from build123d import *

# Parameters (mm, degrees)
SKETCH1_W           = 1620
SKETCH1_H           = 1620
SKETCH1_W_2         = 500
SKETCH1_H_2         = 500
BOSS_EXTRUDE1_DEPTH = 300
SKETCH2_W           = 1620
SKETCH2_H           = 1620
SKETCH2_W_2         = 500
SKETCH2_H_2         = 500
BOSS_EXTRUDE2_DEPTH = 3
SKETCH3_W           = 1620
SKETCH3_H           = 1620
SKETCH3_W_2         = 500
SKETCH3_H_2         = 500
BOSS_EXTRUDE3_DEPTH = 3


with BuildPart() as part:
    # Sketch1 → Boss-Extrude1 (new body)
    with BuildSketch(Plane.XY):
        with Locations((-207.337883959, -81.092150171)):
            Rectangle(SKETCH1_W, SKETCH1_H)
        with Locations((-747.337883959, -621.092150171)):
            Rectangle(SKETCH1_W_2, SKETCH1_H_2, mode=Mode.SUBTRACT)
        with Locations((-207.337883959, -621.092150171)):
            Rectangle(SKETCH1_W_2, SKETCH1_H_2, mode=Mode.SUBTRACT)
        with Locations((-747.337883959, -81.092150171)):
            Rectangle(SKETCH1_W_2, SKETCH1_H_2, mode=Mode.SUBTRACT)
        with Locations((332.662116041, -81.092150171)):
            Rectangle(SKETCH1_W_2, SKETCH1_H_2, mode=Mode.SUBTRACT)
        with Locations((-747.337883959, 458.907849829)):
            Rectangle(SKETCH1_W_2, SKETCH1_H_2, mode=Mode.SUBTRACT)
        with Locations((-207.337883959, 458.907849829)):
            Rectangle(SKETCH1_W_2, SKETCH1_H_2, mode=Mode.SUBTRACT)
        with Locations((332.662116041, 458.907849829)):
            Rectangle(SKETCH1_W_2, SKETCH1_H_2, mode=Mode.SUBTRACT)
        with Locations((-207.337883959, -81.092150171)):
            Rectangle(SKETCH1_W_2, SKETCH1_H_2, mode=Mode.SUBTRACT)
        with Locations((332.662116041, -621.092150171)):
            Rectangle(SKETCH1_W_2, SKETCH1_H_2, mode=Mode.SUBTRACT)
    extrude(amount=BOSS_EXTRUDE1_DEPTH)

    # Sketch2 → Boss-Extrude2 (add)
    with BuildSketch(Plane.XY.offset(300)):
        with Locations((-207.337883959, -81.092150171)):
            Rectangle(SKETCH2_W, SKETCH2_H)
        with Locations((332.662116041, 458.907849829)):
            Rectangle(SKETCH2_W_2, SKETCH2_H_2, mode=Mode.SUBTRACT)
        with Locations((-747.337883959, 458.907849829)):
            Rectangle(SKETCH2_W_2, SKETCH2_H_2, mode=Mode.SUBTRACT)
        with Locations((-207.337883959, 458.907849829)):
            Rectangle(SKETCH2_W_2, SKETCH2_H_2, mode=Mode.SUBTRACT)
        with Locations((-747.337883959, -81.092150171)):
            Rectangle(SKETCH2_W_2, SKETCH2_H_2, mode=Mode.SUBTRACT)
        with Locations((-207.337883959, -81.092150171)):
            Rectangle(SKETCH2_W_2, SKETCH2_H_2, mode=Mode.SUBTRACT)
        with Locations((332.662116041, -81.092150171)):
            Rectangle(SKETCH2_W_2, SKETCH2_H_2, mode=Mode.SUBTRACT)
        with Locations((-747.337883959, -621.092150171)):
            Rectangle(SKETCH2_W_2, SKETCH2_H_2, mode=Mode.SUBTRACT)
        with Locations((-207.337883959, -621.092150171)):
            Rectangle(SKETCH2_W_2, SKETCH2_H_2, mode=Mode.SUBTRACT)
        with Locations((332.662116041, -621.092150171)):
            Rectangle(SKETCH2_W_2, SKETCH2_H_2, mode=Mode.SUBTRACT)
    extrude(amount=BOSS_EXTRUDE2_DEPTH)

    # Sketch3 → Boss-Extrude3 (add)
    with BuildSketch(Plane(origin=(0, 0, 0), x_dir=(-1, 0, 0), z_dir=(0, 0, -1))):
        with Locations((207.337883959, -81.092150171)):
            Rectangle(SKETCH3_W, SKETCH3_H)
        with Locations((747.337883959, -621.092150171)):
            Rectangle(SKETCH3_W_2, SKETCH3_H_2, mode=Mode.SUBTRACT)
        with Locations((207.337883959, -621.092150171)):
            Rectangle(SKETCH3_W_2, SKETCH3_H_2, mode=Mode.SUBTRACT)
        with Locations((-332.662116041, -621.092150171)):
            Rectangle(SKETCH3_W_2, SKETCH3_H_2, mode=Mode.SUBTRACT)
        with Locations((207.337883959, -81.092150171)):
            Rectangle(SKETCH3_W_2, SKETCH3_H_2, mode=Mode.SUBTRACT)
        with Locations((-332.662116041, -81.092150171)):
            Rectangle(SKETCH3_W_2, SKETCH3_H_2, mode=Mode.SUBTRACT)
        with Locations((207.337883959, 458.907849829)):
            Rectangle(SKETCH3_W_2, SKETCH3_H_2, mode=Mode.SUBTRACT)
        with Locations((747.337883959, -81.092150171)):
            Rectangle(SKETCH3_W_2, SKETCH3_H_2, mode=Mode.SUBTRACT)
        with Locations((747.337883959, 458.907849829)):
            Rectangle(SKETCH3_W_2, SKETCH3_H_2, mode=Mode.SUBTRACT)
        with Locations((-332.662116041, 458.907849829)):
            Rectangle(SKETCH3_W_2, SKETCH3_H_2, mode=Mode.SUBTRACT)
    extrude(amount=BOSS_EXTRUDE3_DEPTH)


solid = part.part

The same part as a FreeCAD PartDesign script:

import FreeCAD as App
import Part
import Sketcher
Q = App.Units.Quantity

doc = App.newDocument("Part")
body = doc.addObject("PartDesign::Body", "Body")

# Sketch on XY plane
sketch1 = body.newObject("Sketcher::SketchObject", "Sketch")
sketch1.AttachmentSupport = (doc.getObject("XY_Plane"), [""])
sketch1.MapMode = "FlatFace"
sketch1.addGeometry(Part.LineSegment(App.Vector(-1017, 729, 0), App.Vector(-1017, -891, 0)), False)
sketch1.addGeometry(Part.LineSegment(App.Vector(-1017, -891, 0), App.Vector(603, -891, 0)), False)
sketch1.addGeometry(Part.LineSegment(App.Vector(603, -891, 0), App.Vector(603, 729, 0)), False)
sketch1.addGeometry(Part.LineSegment(App.Vector(603, 729, 0), App.Vector(-1017, 729, 0)), False)
sketch1.addGeometry(Part.LineSegment(App.Vector(-497, -871, 0), App.Vector(-997, -871, 0)), False)
sketch1.addGeometry(Part.LineSegment(App.Vector(-997, -871, 0), App.Vector(-997, -371, 0)), False)
sketch1.addGeometry(Part.LineSegment(App.Vector(-997, -371, 0), App.Vector(-497, -371, 0)), False)
sketch1.addGeometry(Part.LineSegment(App.Vector(-497, -371, 0), App.Vector(-497, -871, 0)), False)
sketch1.addGeometry(Part.LineSegment(App.Vector(43, -871, 0), App.Vector(-457, -871, 0)), False)
sketch1.addGeometry(Part.LineSegment(App.Vector(-457, -871, 0), App.Vector(-457, -371, 0)), False)
sketch1.addGeometry(Part.LineSegment(App.Vector(-457, -371, 0), App.Vector(43, -371, 0)), False)
sketch1.addGeometry(Part.LineSegment(App.Vector(43, -371, 0), App.Vector(43, -871, 0)), False)
sketch1.addGeometry(Part.LineSegment(App.Vector(583, -871, 0), App.Vector(83, -871, 0)), False)
sketch1.addGeometry(Part.LineSegment(App.Vector(83, -871, 0), App.Vector(83, -371, 0)), False)
sketch1.addGeometry(Part.LineSegment(App.Vector(83, -371, 0), App.Vector(583, -371, 0)), False)
sketch1.addGeometry(Part.LineSegment(App.Vector(583, -371, 0), App.Vector(583, -871, 0)), False)
sketch1.addGeometry(Part.LineSegment(App.Vector(-497, -331, 0), App.Vector(-997, -331, 0)), False)
sketch1.addGeometry(Part.LineSegment(App.Vector(-997, -331, 0), App.Vector(-997, 169, 0)), False)
sketch1.addGeometry(Part.LineSegment(App.Vector(-997, 169, 0), App.Vector(-497, 169, 0)), False)
sketch1.addGeometry(Part.LineSegment(App.Vector(-497, 169, 0), App.Vector(-497, -331, 0)), False)
sketch1.addGeometry(Part.LineSegment(App.Vector(-497, 209, 0), App.Vector(-997, 209, 0)), False)
sketch1.addGeometry(Part.LineSegment(App.Vector(-997, 209, 0), App.Vector(-997, 709, 0)), False)
sketch1.addGeometry(Part.LineSegment(App.Vector(-997, 709, 0), App.Vector(-497, 709, 0)), False)
sketch1.addGeometry(Part.LineSegment(App.Vector(-497, 709, 0), App.Vector(-497, 209, 0)), False)
sketch1.addGeometry(Part.LineSegment(App.Vector(43, -331, 0), App.Vector(-457, -331, 0)), False)
sketch1.addGeometry(Part.LineSegment(App.Vector(-457, -331, 0), App.Vector(-457, 169, 0)), False)
sketch1.addGeometry(Part.LineSegment(App.Vector(-457, 169, 0), App.Vector(43, 169, 0)), False)
sketch1.addGeometry(Part.LineSegment(App.Vector(43, 169, 0), App.Vector(43, -331, 0)), False)
sketch1.addGeometry(Part.LineSegment(App.Vector(583, -331, 0), App.Vector(83, -331, 0)), False)
sketch1.addGeometry(Part.LineSegment(App.Vector(83, -331, 0), App.Vector(83, 169, 0)), False)
sketch1.addGeometry(Part.LineSegment(App.Vector(83, 169, 0), App.Vector(583, 169, 0)), False)
sketch1.addGeometry(Part.LineSegment(App.Vector(583, 169, 0), App.Vector(583, -331, 0)), False)
sketch1.addGeometry(Part.LineSegment(App.Vector(43, 209, 0), App.Vector(-457, 209, 0)), False)
sketch1.addGeometry(Part.LineSegment(App.Vector(-457, 209, 0), App.Vector(-457, 709, 0)), False)
sketch1.addGeometry(Part.LineSegment(App.Vector(-457, 709, 0), App.Vector(43, 709, 0)), False)
sketch1.addGeometry(Part.LineSegment(App.Vector(43, 709, 0), App.Vector(43, 209, 0)), False)
sketch1.addGeometry(Part.LineSegment(App.Vector(583, 209, 0), App.Vector(83, 209, 0)), False)
sketch1.addGeometry(Part.LineSegment(App.Vector(83, 209, 0), App.Vector(83, 709, 0)), False)
sketch1.addGeometry(Part.LineSegment(App.Vector(83, 709, 0), App.Vector(583, 709, 0)), False)
sketch1.addGeometry(Part.LineSegment(App.Vector(583, 709, 0), App.Vector(583, 209, 0)), False)
sketch1.addConstraint(Sketcher.Constraint("Coincident", 0, 2, 1, 1))
sketch1.addConstraint(Sketcher.Constraint("Coincident", 1, 2, 2, 1))
sketch1.addConstraint(Sketcher.Constraint("Coincident", 2, 2, 3, 1))
sketch1.addConstraint(Sketcher.Constraint("Coincident", 3, 2, 0, 1))
sketch1.addConstraint(Sketcher.Constraint("Coincident", 4, 2, 5, 1))
sketch1.addConstraint(Sketcher.Constraint("Coincident", 5, 2, 6, 1))
sketch1.addConstraint(Sketcher.Constraint("Coincident", 6, 2, 7, 1))
sketch1.addConstraint(Sketcher.Constraint("Coincident", 7, 2, 4, 1))
sketch1.addConstraint(Sketcher.Constraint("Coincident", 8, 2, 9, 1))
sketch1.addConstraint(Sketcher.Constraint("Coincident", 9, 2, 10, 1))
sketch1.addConstraint(Sketcher.Constraint("Coincident", 10, 2, 11, 1))
sketch1.addConstraint(Sketcher.Constraint("Coincident", 11, 2, 8, 1))
sketch1.addConstraint(Sketcher.Constraint("Coincident", 12, 2, 13, 1))
sketch1.addConstraint(Sketcher.Constraint("Coincident", 13, 2, 14, 1))
sketch1.addConstraint(Sketcher.Constraint("Coincident", 14, 2, 15, 1))
sketch1.addConstraint(Sketcher.Constraint("Coincident", 15, 2, 12, 1))
sketch1.addConstraint(Sketcher.Constraint("Coincident", 16, 2, 17, 1))
sketch1.addConstraint(Sketcher.Constraint("Coincident", 17, 2, 18, 1))
sketch1.addConstraint(Sketcher.Constraint("Coincident", 18, 2, 19, 1))
sketch1.addConstraint(Sketcher.Constraint("Coincident", 19, 2, 16, 1))
sketch1.addConstraint(Sketcher.Constraint("Coincident", 20, 2, 21, 1))
sketch1.addConstraint(Sketcher.Constraint("Coincident", 21, 2, 22, 1))
sketch1.addConstraint(Sketcher.Constraint("Coincident", 22, 2, 23, 1))
sketch1.addConstraint(Sketcher.Constraint("Coincident", 23, 2, 20, 1))
sketch1.addConstraint(Sketcher.Constraint("Coincident", 24, 2, 25, 1))
sketch1.addConstraint(Sketcher.Constraint("Coincident", 25, 2, 26, 1))
sketch1.addConstraint(Sketcher.Constraint("Coincident", 26, 2, 27, 1))
sketch1.addConstraint(Sketcher.Constraint("Coincident", 27, 2, 24, 1))
sketch1.addConstraint(Sketcher.Constraint("Coincident", 28, 2, 29, 1))
sketch1.addConstraint(Sketcher.Constraint("Coincident", 29, 2, 30, 1))
sketch1.addConstraint(Sketcher.Constraint("Coincident", 30, 2, 31, 1))
sketch1.addConstraint(Sketcher.Constraint("Coincident", 31, 2, 28, 1))
sketch1.addConstraint(Sketcher.Constraint("Coincident", 32, 2, 33, 1))
sketch1.addConstraint(Sketcher.Constraint("Coincident", 33, 2, 34, 1))
sketch1.addConstraint(Sketcher.Constraint("Coincident", 34, 2, 35, 1))
sketch1.addConstraint(Sketcher.Constraint("Coincident", 35, 2, 32, 1))
sketch1.addConstraint(Sketcher.Constraint("Coincident", 36, 2, 37, 1))
sketch1.addConstraint(Sketcher.Constraint("Coincident", 37, 2, 38, 1))
sketch1.addConstraint(Sketcher.Constraint("Coincident", 38, 2, 39, 1))
sketch1.addConstraint(Sketcher.Constraint("Coincident", 39, 2, 36, 1))
sketch1.addConstraint(Sketcher.Constraint("Vertical", 0))
sketch1.addConstraint(Sketcher.Constraint("Horizontal", 1))
sketch1.addConstraint(Sketcher.Constraint("Vertical", 2))
sketch1.addConstraint(Sketcher.Constraint("Horizontal", 3))
sketch1.addConstraint(Sketcher.Constraint("Horizontal", 4))
sketch1.addConstraint(Sketcher.Constraint("Vertical", 5))
sketch1.addConstraint(Sketcher.Constraint("Horizontal", 6))
sketch1.addConstraint(Sketcher.Constraint("Vertical", 7))
sketch1.addConstraint(Sketcher.Constraint("Horizontal", 8))
sketch1.addConstraint(Sketcher.Constraint("Vertical", 9))
sketch1.addConstraint(Sketcher.Constraint("Horizontal", 10))
sketch1.addConstraint(Sketcher.Constraint("Vertical", 11))
sketch1.addConstraint(Sketcher.Constraint("Horizontal", 12))
sketch1.addConstraint(Sketcher.Constraint("Vertical", 13))
sketch1.addConstraint(Sketcher.Constraint("Horizontal", 14))
sketch1.addConstraint(Sketcher.Constraint("Vertical", 15))
sketch1.addConstraint(Sketcher.Constraint("Horizontal", 16))
sketch1.addConstraint(Sketcher.Constraint("Vertical", 17))
sketch1.addConstraint(Sketcher.Constraint("Horizontal", 18))
sketch1.addConstraint(Sketcher.Constraint("Vertical", 19))
sketch1.addConstraint(Sketcher.Constraint("Horizontal", 20))
sketch1.addConstraint(Sketcher.Constraint("Vertical", 21))
sketch1.addConstraint(Sketcher.Constraint("Horizontal", 22))
sketch1.addConstraint(Sketcher.Constraint("Vertical", 23))
sketch1.addConstraint(Sketcher.Constraint("Horizontal", 24))
sketch1.addConstraint(Sketcher.Constraint("Vertical", 25))
sketch1.addConstraint(Sketcher.Constraint("Horizontal", 26))
sketch1.addConstraint(Sketcher.Constraint("Vertical", 27))
sketch1.addConstraint(Sketcher.Constraint("Horizontal", 28))
sketch1.addConstraint(Sketcher.Constraint("Vertical", 29))
sketch1.addConstraint(Sketcher.Constraint("Horizontal", 30))
sketch1.addConstraint(Sketcher.Constraint("Vertical", 31))
sketch1.addConstraint(Sketcher.Constraint("Horizontal", 32))
sketch1.addConstraint(Sketcher.Constraint("Vertical", 33))
sketch1.addConstraint(Sketcher.Constraint("Horizontal", 34))
sketch1.addConstraint(Sketcher.Constraint("Vertical", 35))
sketch1.addConstraint(Sketcher.Constraint("Horizontal", 36))
sketch1.addConstraint(Sketcher.Constraint("Vertical", 37))
sketch1.addConstraint(Sketcher.Constraint("Horizontal", 38))
sketch1.addConstraint(Sketcher.Constraint("Vertical", 39))
sketch1.addConstraint(Sketcher.Constraint("Horizontal", 7, 2, 8, 2))
sketch1.addConstraint(Sketcher.Constraint("Horizontal", 6, 2, 9, 2))
sketch1.addConstraint(Sketcher.Constraint("Horizontal", 11, 2, 12, 2))
sketch1.addConstraint(Sketcher.Constraint("Horizontal", 10, 2, 13, 2))
sketch1.addConstraint(Sketcher.Constraint("Horizontal", 19, 2, 24, 2))
sketch1.addConstraint(Sketcher.Constraint("Horizontal", 18, 2, 25, 2))
sketch1.addConstraint(Sketcher.Constraint("Horizontal", 27, 2, 28, 2))
sketch1.addConstraint(Sketcher.Constraint("Horizontal", 26, 2, 29, 2))
sketch1.addConstraint(Sketcher.Constraint("Horizontal", 23, 2, 32, 2))
sketch1.addConstraint(Sketcher.Constraint("Horizontal", 22, 2, 33, 2))
sketch1.addConstraint(Sketcher.Constraint("Horizontal", 35, 2, 36, 2))
sketch1.addConstraint(Sketcher.Constraint("Horizontal", 34, 2, 37, 2))
sketch1.addConstraint(Sketcher.Constraint("Vertical", 5, 2, 16, 2))
sketch1.addConstraint(Sketcher.Constraint("Vertical", 7, 2, 18, 2))
sketch1.addConstraint(Sketcher.Constraint("Vertical", 17, 2, 20, 2))
sketch1.addConstraint(Sketcher.Constraint("Vertical", 19, 2, 22, 2))
sketch1.addConstraint(Sketcher.Constraint("Vertical", 9, 2, 24, 2))
sketch1.addConstraint(Sketcher.Constraint("Vertical", 11, 2, 26, 2))
sketch1.addConstraint(Sketcher.Constraint("Vertical", 13, 2, 28, 2))
sketch1.addConstraint(Sketcher.Constraint("Vertical", 15, 2, 30, 2))
sketch1.addConstraint(Sketcher.Constraint("Vertical", 25, 2, 32, 2))
sketch1.addConstraint(Sketcher.Constraint("Vertical", 27, 2, 34, 2))
sketch1.addConstraint(Sketcher.Constraint("Vertical", 29, 2, 36, 2))
sketch1.addConstraint(Sketcher.Constraint("Vertical", 31, 2, 38, 2))
sketch1.addConstraint(Sketcher.Constraint("Equal", 6, 8))
sketch1.addConstraint(Sketcher.Constraint("Equal", 10, 12))
sketch1.addConstraint(Sketcher.Constraint("Equal", 3, 0))
sketch1.addConstraint(Sketcher.Constraint("Equal", 38, 5))
sketch1.addConstraint(Sketcher.Constraint("Equal", 15, 17))
sketch1.addConstraint(Sketcher.Constraint("Equal", 19, 21))
sketch1.addConstraint(Sketcher.Constraint("DistanceX", 1, 1, 1, 2, Q("1620 mm")))
sketch1.addConstraint(Sketcher.Constraint("DistanceX", 4, 2, 4, 1, Q("500 mm")))
sketch1.addConstraint(Sketcher.Constraint("DistanceX", 0, 2, 4, 2, Q("20 mm")))
sketch1.addConstraint(Sketcher.Constraint("DistanceY", 0, 2, 4, 2, Q("20 mm")))
sketch1.addConstraint(Sketcher.Constraint("DistanceX", 7, 2, 8, 2, Q("40 mm")))
sketch1.addConstraint(Sketcher.Constraint("DistanceX", 11, 2, 12, 2, Q("40 mm")))
sketch1.addConstraint(Sketcher.Constraint("DistanceY", 5, 2, 16, 2, Q("40 mm")))
sketch1.addConstraint(Sketcher.Constraint("DistanceY", 17, 2, 20, 2, Q("40 mm")))
sketch1.addConstraint(Sketcher.Constraint("DistanceY", 0, 2, -1, 1, Q("891.09215 mm")))
sketch1.addConstraint(Sketcher.Constraint("DistanceX", 0, 2, -1, 1, Q("1017.337884 mm")))
pad1 = body.newObject("PartDesign::Pad", "Pad")
pad1.Profile = sketch1
pad1.Length = 300

# Sketch on XY plane
sketch2 = body.newObject("Sketcher::SketchObject", "Sketch001")
sketch2.AttachmentSupport = (doc.getObject("XY_Plane"), [""])
sketch2.MapMode = "FlatFace"
sketch2.AttachmentOffset = App.Placement(App.Vector(0, 0, 300), App.Rotation())
sketch2.addGeometry(Part.LineSegment(App.Vector(-1017, 729, 0), App.Vector(-1017, -891, 0)), False)
sketch2.addGeometry(Part.LineSegment(App.Vector(-1017, -891, 0), App.Vector(603, -891, 0)), False)
sketch2.addGeometry(Part.LineSegment(App.Vector(603, -891, 0), App.Vector(603, 729, 0)), False)
sketch2.addGeometry(Part.LineSegment(App.Vector(603, 729, 0), App.Vector(-1017, 729, 0)), False)
sketch2.addGeometry(Part.LineSegment(App.Vector(-497, -871, 0), App.Vector(-997, -871, 0)), False)
sketch2.addGeometry(Part.LineSegment(App.Vector(-997, -871, 0), App.Vector(-997, -371, 0)), False)
sketch2.addGeometry(Part.LineSegment(App.Vector(-997, -371, 0), App.Vector(-497, -371, 0)), False)
sketch2.addGeometry(Part.LineSegment(App.Vector(-497, -371, 0), App.Vector(-497, -871, 0)), False)
sketch2.addGeometry(Part.LineSegment(App.Vector(43, -871, 0), App.Vector(-457, -871, 0)), False)
sketch2.addGeometry(Part.LineSegment(App.Vector(-457, -871, 0), App.Vector(-457, -371, 0)), False)
sketch2.addGeometry(Part.LineSegment(App.Vector(-457, -371, 0), App.Vector(43, -371, 0)), False)
sketch2.addGeometry(Part.LineSegment(App.Vector(43, -371, 0), App.Vector(43, -871, 0)), False)
sketch2.addGeometry(Part.LineSegment(App.Vector(583, -871, 0), App.Vector(83, -871, 0)), False)
sketch2.addGeometry(Part.LineSegment(App.Vector(83, -871, 0), App.Vector(83, -371, 0)), False)
sketch2.addGeometry(Part.LineSegment(App.Vector(83, -371, 0), App.Vector(583, -371, 0)), False)
sketch2.addGeometry(Part.LineSegment(App.Vector(583, -371, 0), App.Vector(583, -871, 0)), False)
sketch2.addGeometry(Part.LineSegment(App.Vector(-497, -331, 0), App.Vector(-997, -331, 0)), False)
sketch2.addGeometry(Part.LineSegment(App.Vector(-997, -331, 0), App.Vector(-997, 169, 0)), False)
sketch2.addGeometry(Part.LineSegment(App.Vector(-997, 169, 0), App.Vector(-497, 169, 0)), False)
sketch2.addGeometry(Part.LineSegment(App.Vector(-497, 169, 0), App.Vector(-497, -331, 0)), False)
sketch2.addGeometry(Part.LineSegment(App.Vector(-497, 209, 0), App.Vector(-997, 209, 0)), False)
sketch2.addGeometry(Part.LineSegment(App.Vector(-997, 209, 0), App.Vector(-997, 709, 0)), False)
sketch2.addGeometry(Part.LineSegment(App.Vector(-997, 709, 0), App.Vector(-497, 709, 0)), False)
sketch2.addGeometry(Part.LineSegment(App.Vector(-497, 709, 0), App.Vector(-497, 209, 0)), False)
sketch2.addGeometry(Part.LineSegment(App.Vector(43, -331, 0), App.Vector(-457, -331, 0)), False)
sketch2.addGeometry(Part.LineSegment(App.Vector(-457, -331, 0), App.Vector(-457, 169, 0)), False)
sketch2.addGeometry(Part.LineSegment(App.Vector(-457, 169, 0), App.Vector(43, 169, 0)), False)
sketch2.addGeometry(Part.LineSegment(App.Vector(43, 169, 0), App.Vector(43, -331, 0)), False)
sketch2.addGeometry(Part.LineSegment(App.Vector(583, -331, 0), App.Vector(83, -331, 0)), False)
sketch2.addGeometry(Part.LineSegment(App.Vector(83, -331, 0), App.Vector(83, 169, 0)), False)
sketch2.addGeometry(Part.LineSegment(App.Vector(83, 169, 0), App.Vector(583, 169, 0)), False)
sketch2.addGeometry(Part.LineSegment(App.Vector(583, 169, 0), App.Vector(583, -331, 0)), False)
sketch2.addGeometry(Part.LineSegment(App.Vector(43, 209, 0), App.Vector(-457, 209, 0)), False)
sketch2.addGeometry(Part.LineSegment(App.Vector(-457, 209, 0), App.Vector(-457, 709, 0)), False)
sketch2.addGeometry(Part.LineSegment(App.Vector(-457, 709, 0), App.Vector(43, 709, 0)), False)
sketch2.addGeometry(Part.LineSegment(App.Vector(43, 709, 0), App.Vector(43, 209, 0)), False)
sketch2.addGeometry(Part.LineSegment(App.Vector(583, 209, 0), App.Vector(83, 209, 0)), False)
sketch2.addGeometry(Part.LineSegment(App.Vector(83, 209, 0), App.Vector(83, 709, 0)), False)
sketch2.addGeometry(Part.LineSegment(App.Vector(83, 709, 0), App.Vector(583, 709, 0)), False)
sketch2.addGeometry(Part.LineSegment(App.Vector(583, 709, 0), App.Vector(583, 209, 0)), False)
sketch2.addConstraint(Sketcher.Constraint("Coincident", 0, 2, 1, 1))
sketch2.addConstraint(Sketcher.Constraint("Coincident", 1, 2, 2, 1))
sketch2.addConstraint(Sketcher.Constraint("Coincident", 2, 2, 3, 1))
sketch2.addConstraint(Sketcher.Constraint("Coincident", 3, 2, 0, 1))
sketch2.addConstraint(Sketcher.Constraint("Coincident", 4, 2, 5, 1))
sketch2.addConstraint(Sketcher.Constraint("Coincident", 5, 2, 6, 1))
sketch2.addConstraint(Sketcher.Constraint("Coincident", 6, 2, 7, 1))
sketch2.addConstraint(Sketcher.Constraint("Coincident", 7, 2, 4, 1))
sketch2.addConstraint(Sketcher.Constraint("Coincident", 8, 2, 9, 1))
sketch2.addConstraint(Sketcher.Constraint("Coincident", 9, 2, 10, 1))
sketch2.addConstraint(Sketcher.Constraint("Coincident", 10, 2, 11, 1))
sketch2.addConstraint(Sketcher.Constraint("Coincident", 11, 2, 8, 1))
sketch2.addConstraint(Sketcher.Constraint("Coincident", 12, 2, 13, 1))
sketch2.addConstraint(Sketcher.Constraint("Coincident", 13, 2, 14, 1))
sketch2.addConstraint(Sketcher.Constraint("Coincident", 14, 2, 15, 1))
sketch2.addConstraint(Sketcher.Constraint("Coincident", 15, 2, 12, 1))
sketch2.addConstraint(Sketcher.Constraint("Coincident", 16, 2, 17, 1))
sketch2.addConstraint(Sketcher.Constraint("Coincident", 17, 2, 18, 1))
sketch2.addConstraint(Sketcher.Constraint("Coincident", 18, 2, 19, 1))
sketch2.addConstraint(Sketcher.Constraint("Coincident", 19, 2, 16, 1))
sketch2.addConstraint(Sketcher.Constraint("Coincident", 20, 2, 21, 1))
sketch2.addConstraint(Sketcher.Constraint("Coincident", 21, 2, 22, 1))
sketch2.addConstraint(Sketcher.Constraint("Coincident", 22, 2, 23, 1))
sketch2.addConstraint(Sketcher.Constraint("Coincident", 23, 2, 20, 1))
sketch2.addConstraint(Sketcher.Constraint("Coincident", 24, 2, 25, 1))
sketch2.addConstraint(Sketcher.Constraint("Coincident", 25, 2, 26, 1))
sketch2.addConstraint(Sketcher.Constraint("Coincident", 26, 2, 27, 1))
sketch2.addConstraint(Sketcher.Constraint("Coincident", 27, 2, 24, 1))
sketch2.addConstraint(Sketcher.Constraint("Coincident", 28, 2, 29, 1))
sketch2.addConstraint(Sketcher.Constraint("Coincident", 29, 2, 30, 1))
sketch2.addConstraint(Sketcher.Constraint("Coincident", 30, 2, 31, 1))
sketch2.addConstraint(Sketcher.Constraint("Coincident", 31, 2, 28, 1))
sketch2.addConstraint(Sketcher.Constraint("Coincident", 32, 2, 33, 1))
sketch2.addConstraint(Sketcher.Constraint("Coincident", 33, 2, 34, 1))
sketch2.addConstraint(Sketcher.Constraint("Coincident", 34, 2, 35, 1))
sketch2.addConstraint(Sketcher.Constraint("Coincident", 35, 2, 32, 1))
sketch2.addConstraint(Sketcher.Constraint("Coincident", 36, 2, 37, 1))
sketch2.addConstraint(Sketcher.Constraint("Coincident", 37, 2, 38, 1))
sketch2.addConstraint(Sketcher.Constraint("Coincident", 38, 2, 39, 1))
sketch2.addConstraint(Sketcher.Constraint("Coincident", 39, 2, 36, 1))
sketch2.addConstraint(Sketcher.Constraint("Vertical", 0))
sketch2.addConstraint(Sketcher.Constraint("Horizontal", 1))
sketch2.addConstraint(Sketcher.Constraint("Vertical", 2))
sketch2.addConstraint(Sketcher.Constraint("Horizontal", 3))
sketch2.addConstraint(Sketcher.Constraint("Horizontal", 4))
sketch2.addConstraint(Sketcher.Constraint("Vertical", 5))
sketch2.addConstraint(Sketcher.Constraint("Horizontal", 6))
sketch2.addConstraint(Sketcher.Constraint("Vertical", 7))
sketch2.addConstraint(Sketcher.Constraint("Horizontal", 8))
sketch2.addConstraint(Sketcher.Constraint("Vertical", 9))
sketch2.addConstraint(Sketcher.Constraint("Horizontal", 10))
sketch2.addConstraint(Sketcher.Constraint("Vertical", 11))
sketch2.addConstraint(Sketcher.Constraint("Horizontal", 12))
sketch2.addConstraint(Sketcher.Constraint("Vertical", 13))
sketch2.addConstraint(Sketcher.Constraint("Horizontal", 14))
sketch2.addConstraint(Sketcher.Constraint("Vertical", 15))
sketch2.addConstraint(Sketcher.Constraint("Horizontal", 16))
sketch2.addConstraint(Sketcher.Constraint("Vertical", 17))
sketch2.addConstraint(Sketcher.Constraint("Horizontal", 18))
sketch2.addConstraint(Sketcher.Constraint("Vertical", 19))
sketch2.addConstraint(Sketcher.Constraint("Horizontal", 20))
sketch2.addConstraint(Sketcher.Constraint("Vertical", 21))
sketch2.addConstraint(Sketcher.Constraint("Horizontal", 22))
sketch2.addConstraint(Sketcher.Constraint("Vertical", 23))
sketch2.addConstraint(Sketcher.Constraint("Horizontal", 24))
sketch2.addConstraint(Sketcher.Constraint("Vertical", 25))
sketch2.addConstraint(Sketcher.Constraint("Horizontal", 26))
sketch2.addConstraint(Sketcher.Constraint("Vertical", 27))
sketch2.addConstraint(Sketcher.Constraint("Horizontal", 28))
sketch2.addConstraint(Sketcher.Constraint("Vertical", 29))
sketch2.addConstraint(Sketcher.Constraint("Horizontal", 30))
sketch2.addConstraint(Sketcher.Constraint("Vertical", 31))
sketch2.addConstraint(Sketcher.Constraint("Horizontal", 32))
sketch2.addConstraint(Sketcher.Constraint("Vertical", 33))
sketch2.addConstraint(Sketcher.Constraint("Horizontal", 34))
sketch2.addConstraint(Sketcher.Constraint("Vertical", 35))
sketch2.addConstraint(Sketcher.Constraint("Horizontal", 36))
sketch2.addConstraint(Sketcher.Constraint("Vertical", 37))
sketch2.addConstraint(Sketcher.Constraint("Horizontal", 38))
sketch2.addConstraint(Sketcher.Constraint("Vertical", 39))
sketch2.addConstraint(Sketcher.Constraint("Horizontal", 7, 2, 8, 2))
sketch2.addConstraint(Sketcher.Constraint("Horizontal", 6, 2, 9, 2))
sketch2.addConstraint(Sketcher.Constraint("Horizontal", 11, 2, 12, 2))
sketch2.addConstraint(Sketcher.Constraint("Horizontal", 10, 2, 13, 2))
sketch2.addConstraint(Sketcher.Constraint("Horizontal", 19, 2, 24, 2))
sketch2.addConstraint(Sketcher.Constraint("Horizontal", 18, 2, 25, 2))
sketch2.addConstraint(Sketcher.Constraint("Horizontal", 27, 2, 28, 2))
sketch2.addConstraint(Sketcher.Constraint("Horizontal", 26, 2, 29, 2))
sketch2.addConstraint(Sketcher.Constraint("Horizontal", 23, 2, 32, 2))
sketch2.addConstraint(Sketcher.Constraint("Horizontal", 22, 2, 33, 2))
sketch2.addConstraint(Sketcher.Constraint("Horizontal", 35, 2, 36, 2))
sketch2.addConstraint(Sketcher.Constraint("Horizontal", 34, 2, 37, 2))
sketch2.addConstraint(Sketcher.Constraint("Vertical", 5, 2, 16, 2))
sketch2.addConstraint(Sketcher.Constraint("Vertical", 7, 2, 18, 2))
sketch2.addConstraint(Sketcher.Constraint("Vertical", 17, 2, 20, 2))
sketch2.addConstraint(Sketcher.Constraint("Vertical", 19, 2, 22, 2))
sketch2.addConstraint(Sketcher.Constraint("Vertical", 9, 2, 24, 2))
sketch2.addConstraint(Sketcher.Constraint("Vertical", 11, 2, 26, 2))
sketch2.addConstraint(Sketcher.Constraint("Vertical", 13, 2, 28, 2))
sketch2.addConstraint(Sketcher.Constraint("Vertical", 15, 2, 30, 2))
sketch2.addConstraint(Sketcher.Constraint("Vertical", 25, 2, 32, 2))
sketch2.addConstraint(Sketcher.Constraint("Vertical", 27, 2, 34, 2))
sketch2.addConstraint(Sketcher.Constraint("Vertical", 29, 2, 36, 2))
sketch2.addConstraint(Sketcher.Constraint("Vertical", 31, 2, 38, 2))
sketch2.addConstraint(Sketcher.Constraint("Equal", 6, 8))
sketch2.addConstraint(Sketcher.Constraint("Equal", 10, 12))
sketch2.addConstraint(Sketcher.Constraint("Equal", 3, 0))
sketch2.addConstraint(Sketcher.Constraint("Equal", 38, 5))
sketch2.addConstraint(Sketcher.Constraint("Equal", 15, 17))
sketch2.addConstraint(Sketcher.Constraint("Equal", 19, 21))
sketch2.addConstraint(Sketcher.Constraint("DistanceX", 1, 1, 1, 2, Q("1620 mm")))
sketch2.addConstraint(Sketcher.Constraint("DistanceX", 4, 2, 4, 1, Q("500 mm")))
sketch2.addConstraint(Sketcher.Constraint("DistanceX", 0, 2, 4, 2, Q("20 mm")))
sketch2.addConstraint(Sketcher.Constraint("DistanceY", 0, 2, 4, 2, Q("20 mm")))
sketch2.addConstraint(Sketcher.Constraint("DistanceX", 7, 2, 8, 2, Q("40 mm")))
sketch2.addConstraint(Sketcher.Constraint("DistanceX", 11, 2, 12, 2, Q("40 mm")))
sketch2.addConstraint(Sketcher.Constraint("DistanceY", 5, 2, 16, 2, Q("40 mm")))
sketch2.addConstraint(Sketcher.Constraint("DistanceY", 17, 2, 20, 2, Q("40 mm")))
sketch2.addConstraint(Sketcher.Constraint("DistanceY", 0, 2, -1, 1, Q("891.09215 mm")))
sketch2.addConstraint(Sketcher.Constraint("DistanceX", 0, 2, -1, 1, Q("1017.337884 mm")))
pad2 = body.newObject("PartDesign::Pad", "Pad001")
pad2.Profile = sketch2
pad2.Length = 3

# Sketch on XY plane
sketch3 = body.newObject("Sketcher::SketchObject", "Sketch002")
sketch3.AttachmentSupport = (doc.getObject("XY_Plane"), [""])
sketch3.MapMode = "FlatFace"
sketch3.addGeometry(Part.LineSegment(App.Vector(603, 729, 0), App.Vector(603, -891, 0)), False)
sketch3.addGeometry(Part.LineSegment(App.Vector(603, -891, 0), App.Vector(-1017, -891, 0)), False)
sketch3.addGeometry(Part.LineSegment(App.Vector(-1017, -891, 0), App.Vector(-1017, 729, 0)), False)
sketch3.addGeometry(Part.LineSegment(App.Vector(-1017, 729, 0), App.Vector(603, 729, 0)), False)
sketch3.addGeometry(Part.LineSegment(App.Vector(83, -871, 0), App.Vector(583, -871, 0)), False)
sketch3.addGeometry(Part.LineSegment(App.Vector(583, -871, 0), App.Vector(583, -371, 0)), False)
sketch3.addGeometry(Part.LineSegment(App.Vector(583, -371, 0), App.Vector(83, -371, 0)), False)
sketch3.addGeometry(Part.LineSegment(App.Vector(83, -371, 0), App.Vector(83, -871, 0)), False)
sketch3.addGeometry(Part.LineSegment(App.Vector(-457, -871, 0), App.Vector(43, -871, 0)), False)
sketch3.addGeometry(Part.LineSegment(App.Vector(43, -871, 0), App.Vector(43, -371, 0)), False)
sketch3.addGeometry(Part.LineSegment(App.Vector(43, -371, 0), App.Vector(-457, -371, 0)), False)
sketch3.addGeometry(Part.LineSegment(App.Vector(-457, -371, 0), App.Vector(-457, -871, 0)), False)
sketch3.addGeometry(Part.LineSegment(App.Vector(-997, -871, 0), App.Vector(-497, -871, 0)), False)
sketch3.addGeometry(Part.LineSegment(App.Vector(-497, -871, 0), App.Vector(-497, -371, 0)), False)
sketch3.addGeometry(Part.LineSegment(App.Vector(-497, -371, 0), App.Vector(-997, -371, 0)), False)
sketch3.addGeometry(Part.LineSegment(App.Vector(-997, -371, 0), App.Vector(-997, -871, 0)), False)
sketch3.addGeometry(Part.LineSegment(App.Vector(83, -331, 0), App.Vector(583, -331, 0)), False)
sketch3.addGeometry(Part.LineSegment(App.Vector(583, -331, 0), App.Vector(583, 169, 0)), False)
sketch3.addGeometry(Part.LineSegment(App.Vector(583, 169, 0), App.Vector(83, 169, 0)), False)
sketch3.addGeometry(Part.LineSegment(App.Vector(83, 169, 0), App.Vector(83, -331, 0)), False)
sketch3.addGeometry(Part.LineSegment(App.Vector(83, 209, 0), App.Vector(583, 209, 0)), False)
sketch3.addGeometry(Part.LineSegment(App.Vector(583, 209, 0), App.Vector(583, 709, 0)), False)
sketch3.addGeometry(Part.LineSegment(App.Vector(583, 709, 0), App.Vector(83, 709, 0)), False)
sketch3.addGeometry(Part.LineSegment(App.Vector(83, 709, 0), App.Vector(83, 209, 0)), False)
sketch3.addGeometry(Part.LineSegment(App.Vector(-457, -331, 0), App.Vector(43, -331, 0)), False)
sketch3.addGeometry(Part.LineSegment(App.Vector(43, -331, 0), App.Vector(43, 169, 0)), False)
sketch3.addGeometry(Part.LineSegment(App.Vector(43, 169, 0), App.Vector(-457, 169, 0)), False)
sketch3.addGeometry(Part.LineSegment(App.Vector(-457, 169, 0), App.Vector(-457, -331, 0)), False)
sketch3.addGeometry(Part.LineSegment(App.Vector(-997, -331, 0), App.Vector(-497, -331, 0)), False)
sketch3.addGeometry(Part.LineSegment(App.Vector(-497, -331, 0), App.Vector(-497, 169, 0)), False)
sketch3.addGeometry(Part.LineSegment(App.Vector(-497, 169, 0), App.Vector(-997, 169, 0)), False)
sketch3.addGeometry(Part.LineSegment(App.Vector(-997, 169, 0), App.Vector(-997, -331, 0)), False)
sketch3.addGeometry(Part.LineSegment(App.Vector(-457, 209, 0), App.Vector(43, 209, 0)), False)
sketch3.addGeometry(Part.LineSegment(App.Vector(43, 209, 0), App.Vector(43, 709, 0)), False)
sketch3.addGeometry(Part.LineSegment(App.Vector(43, 709, 0), App.Vector(-457, 709, 0)), False)
sketch3.addGeometry(Part.LineSegment(App.Vector(-457, 709, 0), App.Vector(-457, 209, 0)), False)
sketch3.addGeometry(Part.LineSegment(App.Vector(-997, 209, 0), App.Vector(-497, 209, 0)), False)
sketch3.addGeometry(Part.LineSegment(App.Vector(-497, 209, 0), App.Vector(-497, 709, 0)), False)
sketch3.addGeometry(Part.LineSegment(App.Vector(-497, 709, 0), App.Vector(-997, 709, 0)), False)
sketch3.addGeometry(Part.LineSegment(App.Vector(-997, 709, 0), App.Vector(-997, 209, 0)), False)
sketch3.addConstraint(Sketcher.Constraint("Coincident", 0, 2, 1, 1))
sketch3.addConstraint(Sketcher.Constraint("Coincident", 1, 2, 2, 1))
sketch3.addConstraint(Sketcher.Constraint("Coincident", 2, 2, 3, 1))
sketch3.addConstraint(Sketcher.Constraint("Coincident", 3, 2, 0, 1))
sketch3.addConstraint(Sketcher.Constraint("Coincident", 4, 2, 5, 1))
sketch3.addConstraint(Sketcher.Constraint("Coincident", 5, 2, 6, 1))
sketch3.addConstraint(Sketcher.Constraint("Coincident", 6, 2, 7, 1))
sketch3.addConstraint(Sketcher.Constraint("Coincident", 7, 2, 4, 1))
sketch3.addConstraint(Sketcher.Constraint("Coincident", 8, 2, 9, 1))
sketch3.addConstraint(Sketcher.Constraint("Coincident", 9, 2, 10, 1))
sketch3.addConstraint(Sketcher.Constraint("Coincident", 10, 2, 11, 1))
sketch3.addConstraint(Sketcher.Constraint("Coincident", 11, 2, 8, 1))
sketch3.addConstraint(Sketcher.Constraint("Coincident", 12, 2, 13, 1))
sketch3.addConstraint(Sketcher.Constraint("Coincident", 13, 2, 14, 1))
sketch3.addConstraint(Sketcher.Constraint("Coincident", 14, 2, 15, 1))
sketch3.addConstraint(Sketcher.Constraint("Coincident", 15, 2, 12, 1))
sketch3.addConstraint(Sketcher.Constraint("Coincident", 16, 2, 17, 1))
sketch3.addConstraint(Sketcher.Constraint("Coincident", 17, 2, 18, 1))
sketch3.addConstraint(Sketcher.Constraint("Coincident", 18, 2, 19, 1))
sketch3.addConstraint(Sketcher.Constraint("Coincident", 19, 2, 16, 1))
sketch3.addConstraint(Sketcher.Constraint("Coincident", 20, 2, 21, 1))
sketch3.addConstraint(Sketcher.Constraint("Coincident", 21, 2, 22, 1))
sketch3.addConstraint(Sketcher.Constraint("Coincident", 22, 2, 23, 1))
sketch3.addConstraint(Sketcher.Constraint("Coincident", 23, 2, 20, 1))
sketch3.addConstraint(Sketcher.Constraint("Coincident", 24, 2, 25, 1))
sketch3.addConstraint(Sketcher.Constraint("Coincident", 25, 2, 26, 1))
sketch3.addConstraint(Sketcher.Constraint("Coincident", 26, 2, 27, 1))
sketch3.addConstraint(Sketcher.Constraint("Coincident", 27, 2, 24, 1))
sketch3.addConstraint(Sketcher.Constraint("Coincident", 28, 2, 29, 1))
sketch3.addConstraint(Sketcher.Constraint("Coincident", 29, 2, 30, 1))
sketch3.addConstraint(Sketcher.Constraint("Coincident", 30, 2, 31, 1))
sketch3.addConstraint(Sketcher.Constraint("Coincident", 31, 2, 28, 1))
sketch3.addConstraint(Sketcher.Constraint("Coincident", 32, 2, 33, 1))
sketch3.addConstraint(Sketcher.Constraint("Coincident", 33, 2, 34, 1))
sketch3.addConstraint(Sketcher.Constraint("Coincident", 34, 2, 35, 1))
sketch3.addConstraint(Sketcher.Constraint("Coincident", 35, 2, 32, 1))
sketch3.addConstraint(Sketcher.Constraint("Coincident", 36, 2, 37, 1))
sketch3.addConstraint(Sketcher.Constraint("Coincident", 37, 2, 38, 1))
sketch3.addConstraint(Sketcher.Constraint("Coincident", 38, 2, 39, 1))
sketch3.addConstraint(Sketcher.Constraint("Coincident", 39, 2, 36, 1))
sketch3.addConstraint(Sketcher.Constraint("Vertical", 0))
sketch3.addConstraint(Sketcher.Constraint("Horizontal", 1))
sketch3.addConstraint(Sketcher.Constraint("Vertical", 2))
sketch3.addConstraint(Sketcher.Constraint("Horizontal", 3))
sketch3.addConstraint(Sketcher.Constraint("Horizontal", 4))
sketch3.addConstraint(Sketcher.Constraint("Vertical", 5))
sketch3.addConstraint(Sketcher.Constraint("Horizontal", 6))
sketch3.addConstraint(Sketcher.Constraint("Vertical", 7))
sketch3.addConstraint(Sketcher.Constraint("Horizontal", 8))
sketch3.addConstraint(Sketcher.Constraint("Vertical", 9))
sketch3.addConstraint(Sketcher.Constraint("Horizontal", 10))
sketch3.addConstraint(Sketcher.Constraint("Vertical", 11))
sketch3.addConstraint(Sketcher.Constraint("Horizontal", 12))
sketch3.addConstraint(Sketcher.Constraint("Vertical", 13))
sketch3.addConstraint(Sketcher.Constraint("Horizontal", 14))
sketch3.addConstraint(Sketcher.Constraint("Vertical", 15))
sketch3.addConstraint(Sketcher.Constraint("Horizontal", 16))
sketch3.addConstraint(Sketcher.Constraint("Vertical", 17))
sketch3.addConstraint(Sketcher.Constraint("Horizontal", 18))
sketch3.addConstraint(Sketcher.Constraint("Vertical", 19))
sketch3.addConstraint(Sketcher.Constraint("Horizontal", 20))
sketch3.addConstraint(Sketcher.Constraint("Vertical", 21))
sketch3.addConstraint(Sketcher.Constraint("Horizontal", 22))
sketch3.addConstraint(Sketcher.Constraint("Vertical", 23))
sketch3.addConstraint(Sketcher.Constraint("Horizontal", 24))
sketch3.addConstraint(Sketcher.Constraint("Vertical", 25))
sketch3.addConstraint(Sketcher.Constraint("Horizontal", 26))
sketch3.addConstraint(Sketcher.Constraint("Vertical", 27))
sketch3.addConstraint(Sketcher.Constraint("Horizontal", 28))
sketch3.addConstraint(Sketcher.Constraint("Vertical", 29))
sketch3.addConstraint(Sketcher.Constraint("Horizontal", 30))
sketch3.addConstraint(Sketcher.Constraint("Vertical", 31))
sketch3.addConstraint(Sketcher.Constraint("Horizontal", 32))
sketch3.addConstraint(Sketcher.Constraint("Vertical", 33))
sketch3.addConstraint(Sketcher.Constraint("Horizontal", 34))
sketch3.addConstraint(Sketcher.Constraint("Vertical", 35))
sketch3.addConstraint(Sketcher.Constraint("Horizontal", 36))
sketch3.addConstraint(Sketcher.Constraint("Vertical", 37))
sketch3.addConstraint(Sketcher.Constraint("Horizontal", 38))
sketch3.addConstraint(Sketcher.Constraint("Vertical", 39))
sketch3.addConstraint(Sketcher.Constraint("Horizontal", 7, 2, 8, 2))
sketch3.addConstraint(Sketcher.Constraint("Horizontal", 6, 2, 9, 2))
sketch3.addConstraint(Sketcher.Constraint("Horizontal", 11, 2, 12, 2))
sketch3.addConstraint(Sketcher.Constraint("Horizontal", 10, 2, 13, 2))
sketch3.addConstraint(Sketcher.Constraint("Horizontal", 19, 2, 24, 2))
sketch3.addConstraint(Sketcher.Constraint("Horizontal", 18, 2, 25, 2))
sketch3.addConstraint(Sketcher.Constraint("Horizontal", 27, 2, 28, 2))
sketch3.addConstraint(Sketcher.Constraint("Horizontal", 26, 2, 29, 2))
sketch3.addConstraint(Sketcher.Constraint("Horizontal", 23, 2, 32, 2))
sketch3.addConstraint(Sketcher.Constraint("Horizontal", 22, 2, 33, 2))
sketch3.addConstraint(Sketcher.Constraint("Horizontal", 35, 2, 36, 2))
sketch3.addConstraint(Sketcher.Constraint("Horizontal", 34, 2, 37, 2))
sketch3.addConstraint(Sketcher.Constraint("Vertical", 5, 2, 16, 2))
sketch3.addConstraint(Sketcher.Constraint("Vertical", 7, 2, 18, 2))
sketch3.addConstraint(Sketcher.Constraint("Vertical", 17, 2, 20, 2))
sketch3.addConstraint(Sketcher.Constraint("Vertical", 19, 2, 22, 2))
sketch3.addConstraint(Sketcher.Constraint("Vertical", 9, 2, 24, 2))
sketch3.addConstraint(Sketcher.Constraint("Vertical", 11, 2, 26, 2))
sketch3.addConstraint(Sketcher.Constraint("Vertical", 13, 2, 28, 2))
sketch3.addConstraint(Sketcher.Constraint("Vertical", 15, 2, 30, 2))
sketch3.addConstraint(Sketcher.Constraint("Vertical", 25, 2, 32, 2))
sketch3.addConstraint(Sketcher.Constraint("Vertical", 27, 2, 34, 2))
sketch3.addConstraint(Sketcher.Constraint("Vertical", 29, 2, 36, 2))
sketch3.addConstraint(Sketcher.Constraint("Vertical", 31, 2, 38, 2))
sketch3.addConstraint(Sketcher.Constraint("Equal", 6, 8))
sketch3.addConstraint(Sketcher.Constraint("Equal", 10, 12))
sketch3.addConstraint(Sketcher.Constraint("Equal", 3, 0))
sketch3.addConstraint(Sketcher.Constraint("Equal", 38, 5))
sketch3.addConstraint(Sketcher.Constraint("Equal", 15, 17))
sketch3.addConstraint(Sketcher.Constraint("Equal", 19, 21))
sketch3.addConstraint(Sketcher.Constraint("DistanceX", 1, 2, 1, 1, Q("1620 mm")))
sketch3.addConstraint(Sketcher.Constraint("DistanceX", 4, 1, 4, 2, Q("500 mm")))
sketch3.addConstraint(Sketcher.Constraint("DistanceX", 4, 2, 0, 2, Q("20 mm")))
sketch3.addConstraint(Sketcher.Constraint("DistanceY", 0, 2, 4, 2, Q("20 mm")))
sketch3.addConstraint(Sketcher.Constraint("DistanceX", 8, 2, 7, 2, Q("40 mm")))
sketch3.addConstraint(Sketcher.Constraint("DistanceX", 12, 2, 11, 2, Q("40 mm")))
sketch3.addConstraint(Sketcher.Constraint("DistanceY", 5, 2, 16, 2, Q("40 mm")))
sketch3.addConstraint(Sketcher.Constraint("DistanceY", 17, 2, 20, 2, Q("40 mm")))
sketch3.addConstraint(Sketcher.Constraint("DistanceY", 0, 2, -1, 1, Q("891.09215 mm")))
sketch3.addConstraint(Sketcher.Constraint("DistanceX", -1, 1, 0, 2, Q("602.662116 mm")))
pad3 = body.newObject("PartDesign::Pad", "Pad002")
pad3.Profile = sketch3
pad3.Length = 3
pad3.Reversed = True

doc.recompute()
